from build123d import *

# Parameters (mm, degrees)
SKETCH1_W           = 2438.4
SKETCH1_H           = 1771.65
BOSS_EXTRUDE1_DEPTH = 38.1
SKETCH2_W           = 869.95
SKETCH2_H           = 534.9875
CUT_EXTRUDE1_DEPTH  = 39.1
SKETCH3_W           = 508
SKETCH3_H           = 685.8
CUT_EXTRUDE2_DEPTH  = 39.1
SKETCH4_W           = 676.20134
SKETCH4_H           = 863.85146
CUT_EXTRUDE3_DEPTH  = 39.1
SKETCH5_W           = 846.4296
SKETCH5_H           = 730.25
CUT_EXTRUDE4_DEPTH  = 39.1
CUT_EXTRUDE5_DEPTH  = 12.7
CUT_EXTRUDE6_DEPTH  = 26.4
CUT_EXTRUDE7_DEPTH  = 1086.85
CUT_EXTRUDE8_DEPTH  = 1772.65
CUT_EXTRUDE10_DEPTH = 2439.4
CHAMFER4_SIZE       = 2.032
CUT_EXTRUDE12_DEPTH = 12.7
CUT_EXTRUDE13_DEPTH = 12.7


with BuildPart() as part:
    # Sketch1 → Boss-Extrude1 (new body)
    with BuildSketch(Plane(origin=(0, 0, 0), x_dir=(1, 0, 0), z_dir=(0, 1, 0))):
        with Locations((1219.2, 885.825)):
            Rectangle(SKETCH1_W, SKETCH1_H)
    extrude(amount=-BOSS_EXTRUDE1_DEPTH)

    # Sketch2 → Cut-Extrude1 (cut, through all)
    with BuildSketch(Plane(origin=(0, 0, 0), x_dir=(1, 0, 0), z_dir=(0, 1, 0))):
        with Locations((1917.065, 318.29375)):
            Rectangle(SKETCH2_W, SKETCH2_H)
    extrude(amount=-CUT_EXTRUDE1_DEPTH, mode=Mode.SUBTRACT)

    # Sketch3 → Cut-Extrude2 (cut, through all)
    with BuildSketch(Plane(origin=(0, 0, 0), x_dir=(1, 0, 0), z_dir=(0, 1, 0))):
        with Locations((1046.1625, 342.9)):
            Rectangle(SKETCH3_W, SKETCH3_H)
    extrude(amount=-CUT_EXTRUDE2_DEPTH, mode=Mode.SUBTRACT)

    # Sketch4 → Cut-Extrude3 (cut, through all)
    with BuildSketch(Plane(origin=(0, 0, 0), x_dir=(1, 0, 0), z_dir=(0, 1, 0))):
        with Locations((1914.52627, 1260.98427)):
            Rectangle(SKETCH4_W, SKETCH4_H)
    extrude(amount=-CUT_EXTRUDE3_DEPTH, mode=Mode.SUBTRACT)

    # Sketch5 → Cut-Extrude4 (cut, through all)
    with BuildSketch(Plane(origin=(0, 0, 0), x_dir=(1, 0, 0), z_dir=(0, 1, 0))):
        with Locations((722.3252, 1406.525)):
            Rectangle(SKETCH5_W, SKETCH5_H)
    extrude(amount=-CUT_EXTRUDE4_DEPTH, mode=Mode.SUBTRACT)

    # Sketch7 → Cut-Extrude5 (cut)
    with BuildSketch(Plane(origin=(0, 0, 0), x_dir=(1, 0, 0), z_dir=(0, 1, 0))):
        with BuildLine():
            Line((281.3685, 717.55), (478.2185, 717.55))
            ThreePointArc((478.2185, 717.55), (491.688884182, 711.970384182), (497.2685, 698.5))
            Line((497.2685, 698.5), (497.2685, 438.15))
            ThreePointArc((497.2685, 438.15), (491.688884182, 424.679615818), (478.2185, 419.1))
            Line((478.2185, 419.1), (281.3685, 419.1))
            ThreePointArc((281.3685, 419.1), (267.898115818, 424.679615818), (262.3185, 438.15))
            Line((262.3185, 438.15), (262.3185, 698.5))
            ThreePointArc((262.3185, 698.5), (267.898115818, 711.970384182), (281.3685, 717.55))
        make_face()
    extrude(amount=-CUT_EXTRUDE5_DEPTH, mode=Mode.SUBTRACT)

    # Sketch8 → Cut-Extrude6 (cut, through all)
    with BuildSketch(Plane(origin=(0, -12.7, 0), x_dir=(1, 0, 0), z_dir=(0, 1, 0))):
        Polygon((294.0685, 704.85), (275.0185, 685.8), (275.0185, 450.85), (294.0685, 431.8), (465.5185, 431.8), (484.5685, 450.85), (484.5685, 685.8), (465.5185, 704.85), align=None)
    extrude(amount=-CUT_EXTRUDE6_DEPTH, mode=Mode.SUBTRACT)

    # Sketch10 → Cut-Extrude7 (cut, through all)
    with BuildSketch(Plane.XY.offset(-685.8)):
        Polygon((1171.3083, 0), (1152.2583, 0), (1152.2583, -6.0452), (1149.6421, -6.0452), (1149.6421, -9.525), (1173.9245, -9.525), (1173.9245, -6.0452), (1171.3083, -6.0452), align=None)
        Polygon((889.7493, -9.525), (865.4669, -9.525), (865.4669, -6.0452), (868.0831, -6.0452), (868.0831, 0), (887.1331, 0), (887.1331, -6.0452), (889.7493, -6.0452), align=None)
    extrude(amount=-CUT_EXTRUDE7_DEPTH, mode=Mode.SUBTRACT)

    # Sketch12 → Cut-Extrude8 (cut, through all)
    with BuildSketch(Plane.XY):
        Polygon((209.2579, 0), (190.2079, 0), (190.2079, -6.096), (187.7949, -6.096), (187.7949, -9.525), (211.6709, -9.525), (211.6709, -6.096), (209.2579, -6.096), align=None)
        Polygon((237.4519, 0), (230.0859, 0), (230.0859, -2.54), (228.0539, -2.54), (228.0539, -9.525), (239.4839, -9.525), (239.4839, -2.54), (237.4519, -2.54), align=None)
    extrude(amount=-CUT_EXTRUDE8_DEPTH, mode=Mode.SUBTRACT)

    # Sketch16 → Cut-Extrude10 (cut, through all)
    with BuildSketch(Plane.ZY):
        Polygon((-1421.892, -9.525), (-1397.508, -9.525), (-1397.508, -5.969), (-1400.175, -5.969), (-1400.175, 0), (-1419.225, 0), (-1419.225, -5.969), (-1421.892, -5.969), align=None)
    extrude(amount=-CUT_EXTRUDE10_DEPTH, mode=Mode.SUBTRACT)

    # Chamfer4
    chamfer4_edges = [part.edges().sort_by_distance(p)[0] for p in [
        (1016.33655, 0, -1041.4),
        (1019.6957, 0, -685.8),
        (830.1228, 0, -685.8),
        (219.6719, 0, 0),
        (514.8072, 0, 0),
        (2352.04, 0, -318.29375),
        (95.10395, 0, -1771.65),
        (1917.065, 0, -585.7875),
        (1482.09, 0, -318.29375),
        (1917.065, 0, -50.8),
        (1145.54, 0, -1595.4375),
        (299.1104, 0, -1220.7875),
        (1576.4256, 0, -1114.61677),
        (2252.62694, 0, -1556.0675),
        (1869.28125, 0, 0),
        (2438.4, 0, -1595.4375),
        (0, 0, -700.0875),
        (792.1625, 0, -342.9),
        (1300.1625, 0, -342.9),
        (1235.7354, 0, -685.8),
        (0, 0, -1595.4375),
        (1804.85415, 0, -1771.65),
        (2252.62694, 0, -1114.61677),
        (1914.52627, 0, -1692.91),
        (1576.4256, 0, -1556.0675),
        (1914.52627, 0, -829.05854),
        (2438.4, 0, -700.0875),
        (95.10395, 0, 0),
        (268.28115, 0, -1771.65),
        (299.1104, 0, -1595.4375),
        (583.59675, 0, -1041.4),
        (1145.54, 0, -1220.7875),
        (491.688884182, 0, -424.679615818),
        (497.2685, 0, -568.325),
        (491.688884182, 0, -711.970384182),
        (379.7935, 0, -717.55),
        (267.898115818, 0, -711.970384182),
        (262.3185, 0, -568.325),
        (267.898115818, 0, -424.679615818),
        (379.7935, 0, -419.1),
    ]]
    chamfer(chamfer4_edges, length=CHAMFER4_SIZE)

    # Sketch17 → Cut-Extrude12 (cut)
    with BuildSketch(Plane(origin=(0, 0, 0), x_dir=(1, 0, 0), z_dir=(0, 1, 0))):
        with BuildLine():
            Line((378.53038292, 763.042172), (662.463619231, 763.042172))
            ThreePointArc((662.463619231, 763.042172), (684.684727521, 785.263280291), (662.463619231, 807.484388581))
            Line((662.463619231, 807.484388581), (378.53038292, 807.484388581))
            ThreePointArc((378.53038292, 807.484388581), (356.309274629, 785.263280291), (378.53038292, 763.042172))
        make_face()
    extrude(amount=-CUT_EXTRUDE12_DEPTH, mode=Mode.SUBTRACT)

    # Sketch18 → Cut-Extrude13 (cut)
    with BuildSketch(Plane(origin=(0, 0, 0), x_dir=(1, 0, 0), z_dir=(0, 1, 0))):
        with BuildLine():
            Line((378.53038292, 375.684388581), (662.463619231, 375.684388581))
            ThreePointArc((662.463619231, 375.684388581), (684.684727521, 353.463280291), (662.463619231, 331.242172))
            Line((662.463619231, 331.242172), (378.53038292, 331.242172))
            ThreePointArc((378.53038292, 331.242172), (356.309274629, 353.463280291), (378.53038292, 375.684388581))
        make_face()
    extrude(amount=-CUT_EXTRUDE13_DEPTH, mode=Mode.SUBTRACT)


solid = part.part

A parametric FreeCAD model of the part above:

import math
import FreeCAD as App
import Part
import Sketcher
from FreeCAD import Vector
Q = App.Units.Quantity


def edges_at(feature, points):
    """Names of the edges that pass closest to the given points."""
    edges = feature.Shape.Edges
    near = lambda p: min(range(len(edges)), key=lambda i: edges[i].distToShape(Part.Vertex(*p))[0])
    return sorted({f"Edge{near(p) + 1}" for p in points})

doc = App.newDocument("Part")
body = doc.addObject("PartDesign::Body", "Body")

# Sketch on XZ plane
sketch1 = doc.addObject("Sketcher::SketchObject", "Sketch")
body.addObject(sketch1)
sketch1.AttachmentSupport = (doc.XZ_Plane, [""])
sketch1.MapMode = "FlatFace"
sketch1.addGeometry([
    Part.LineSegment(Vector(0, -1771.65, 0), Vector(0, 0, 0)),
    Part.LineSegment(Vector(0, 0, 0), Vector(2438.4, 0, 0)),
    Part.LineSegment(Vector(2438.4, 0, 0), Vector(2438.4, -1771.65, 0)),
    Part.LineSegment(Vector(2438.4, -1771.65, 0), Vector(0, -1771.65, 0)),
], False)
sketch1.addConstraint([
    Sketcher.Constraint("Coincident", 0, 2, 1, 1),
    Sketcher.Constraint("Coincident", 1, 2, 2, 1),
    Sketcher.Constraint("Coincident", 2, 2, 3, 1),
    Sketcher.Constraint("Coincident", 3, 2, 0, 1),
    Sketcher.Constraint("Vertical", 0),
    Sketcher.Constraint("Horizontal", 1),
    Sketcher.Constraint("Vertical", 2),
    Sketcher.Constraint("Horizontal", 3),
    Sketcher.Constraint("Coincident", 0, 2, -1, 1),
    Sketcher.Constraint("DistanceX", 1, 1, 1, 2, Q("96 in")),
    Sketcher.Constraint("DistanceY", 0, 1, 0, 2, Q("69.75 in")),
])
pad1 = doc.addObject("PartDesign::Pad", "Pad")
body.addObject(pad1)
pad1.Profile = sketch1
pad1.Length = Q("1.5 in")

# Sketch on XZ plane
sketch2 = doc.addObject("Sketcher::SketchObject", "Sketch001")
body.addObject(sketch2)
sketch2.AttachmentSupport = (doc.XZ_Plane, [""])
sketch2.MapMode = "FlatFace"
sketch2.addGeometry([
    Part.LineSegment(Vector(1482.09, -585.7875, 0), Vector(1482.09, -50.8, 0)),
    Part.LineSegment(Vector(1482.09, -50.8, 0), Vector(2352.04, -50.8, 0)),
    Part.LineSegment(Vector(2352.04, -50.8, 0), Vector(2352.04, -585.7875, 0)),
    Part.LineSegment(Vector(2352.04, -585.7875, 0), Vector(1482.09, -585.7875, 0)),
], False)
sketch2.addConstraint([
    Sketcher.Constraint("Coincident", 0, 2, 1, 1),
    Sketcher.Constraint("Coincident", 1, 2, 2, 1),
    Sketcher.Constraint("Coincident", 2, 2, 3, 1),
    Sketcher.Constraint("Coincident", 3, 2, 0, 1),
    Sketcher.Constraint("Vertical", 0),
    Sketcher.Constraint("Horizontal", 1),
    Sketcher.Constraint("Vertical", 2),
    Sketcher.Constraint("Horizontal", 3),
    Sketcher.Constraint("DistanceY", 0, 2, -1, 1, Q("2 in")),
    Sketcher.Constraint("DistanceX", 1, 1, 1, 2, Q("34.25 in")),
    Sketcher.Constraint("DistanceX", -1, 1, 1, 2, Q("92.6 in")),
    Sketcher.Constraint("DistanceY", 0, 1, 0, 2, Q("21.0625 in")),
])
pocket1 = doc.addObject("PartDesign::Pocket", "Pocket")
body.addObject(pocket1)
pocket1.Profile = sketch2
pocket1.Type = "ThroughAll"
pocket1.Reversed = True

# Sketch on XZ plane
sketch3 = doc.addObject("Sketcher::SketchObject", "Sketch002")
body.addObject(sketch3)
sketch3.AttachmentSupport = (doc.XZ_Plane, [""])
sketch3.MapMode = "FlatFace"
sketch3.addGeometry([
    Part.LineSegment(Vector(792.1625, -685.8, 0), Vector(792.1625, 0, 0)),
    Part.LineSegment(Vector(792.1625, 0, 0), Vector(1300.1625, 0, 0)),
    Part.LineSegment(Vector(1300.1625, 0, 0), Vector(1300.1625, -685.8, 0)),
    Part.LineSegment(Vector(1300.1625, -685.8, 0), Vector(792.1625, -685.8, 0)),
], False)
sketch3.addConstraint([
    Sketcher.Constraint("Coincident", 0, 2, 1, 1),
    Sketcher.Constraint("Coincident", 1, 2, 2, 1),
    Sketcher.Constraint("Coincident", 2, 2, 3, 1),
    Sketcher.Constraint("Coincident", 3, 2, 0, 1),
    Sketcher.Constraint("Vertical", 0),
    Sketcher.Constraint("Horizontal", 1),
    Sketcher.Constraint("Vertical", 2),
    Sketcher.Constraint("Horizontal", 3),
    Sketcher.Constraint("PointOnObject", 0, 2, -1),
    Sketcher.Constraint("DistanceX", 1, 1, 1, 2, Q("20 in")),
    Sketcher.Constraint("DistanceY", 0, 1, 0, 2, Q("27 in")),
    Sketcher.Constraint("DistanceX", -1, 1, 0, 2, Q("31.1875 in")),
])
pocket2 = doc.addObject("PartDesign::Pocket", "Pocket001")
body.addObject(pocket2)
pocket2.Profile = sketch3
pocket2.Type = "ThroughAll"
pocket2.Reversed = True

# Sketch on XZ plane
sketch4 = doc.addObject("Sketcher::SketchObject", "Sketch003")
body.addObject(sketch4)
sketch4.AttachmentSupport = (doc.XZ_Plane, [""])
sketch4.MapMode = "FlatFace"
sketch4.addGeometry([
    Part.LineSegment(Vector(1576.4256, -1692.91, 0), Vector(1576.4256, -829.05854, 0)),
    Part.LineSegment(Vector(1576.4256, -829.05854, 0), Vector(2252.62694, -829.05854, 0)),
    Part.LineSegment(Vector(2252.62694, -829.05854, 0), Vector(2252.62694, -1692.91, 0)),
    Part.LineSegment(Vector(2252.62694, -1692.91, 0), Vector(1576.4256, -1692.91, 0)),
], False)
sketch4.addConstraint([
    Sketcher.Constraint("Coincident", 0, 2, 1, 1),
    Sketcher.Constraint("Coincident", 1, 2, 2, 1),
    Sketcher.Constraint("Coincident", 2, 2, 3, 1),
    Sketcher.Constraint("Coincident", 3, 2, 0, 1),
    Sketcher.Constraint("Vertical", 0),
    Sketcher.Constraint("Horizontal", 1),
    Sketcher.Constraint("Vertical", 2),
    Sketcher.Constraint("Horizontal", 3),
    Sketcher.Constraint("DistanceY", 2, 2, -1, 1, Q("66.65 in")),
    Sketcher.Constraint("DistanceX", 1, 1, 1, 2, Q("26.6221 in")),
    Sketcher.Constraint("DistanceY", 0, 1, 0, 2, Q("34.0099 in")),
    Sketcher.Constraint("DistanceX", -1, 1, 0, 2, Q("62.064 in")),
])
pocket3 = doc.addObject("PartDesign::Pocket", "Pocket002")
body.addObject(pocket3)
pocket3.Profile = sketch4
pocket3.Type = "ThroughAll"
pocket3.Reversed = True

# Sketch on XZ plane
sketch5 = doc.addObject("Sketcher::SketchObject", "Sketch004")
body.addObject(sketch5)
sketch5.AttachmentSupport = (doc.XZ_Plane, [""])
sketch5.MapMode = "FlatFace"
sketch5.addGeometry([
    Part.LineSegment(Vector(299.1104, -1771.65, 0), Vector(299.1104, -1041.4, 0)),
    Part.LineSegment(Vector(299.1104, -1041.4, 0), Vector(1145.54, -1041.4, 0)),
    Part.LineSegment(Vector(1145.54, -1041.4, 0), Vector(1145.54, -1771.65, 0)),
    Part.LineSegment(Vector(1145.54, -1771.65, 0), Vector(299.1104, -1771.65, 0)),
], False)
sketch5.addConstraint([
    Sketcher.Constraint("Coincident", 0, 2, 1, 1),
    Sketcher.Constraint("Coincident", 1, 2, 2, 1),
    Sketcher.Constraint("Coincident", 2, 2, 3, 1),
    Sketcher.Constraint("Coincident", 3, 2, 0, 1),
    Sketcher.Constraint("Vertical", 0),
    Sketcher.Constraint("Horizontal", 1),
    Sketcher.Constraint("Vertical", 2),
    Sketcher.Constraint("Horizontal", 3),
    Sketcher.Constraint("DistanceY", 0, 2, -1, 1, Q("41 in")),
    Sketcher.Constraint("DistanceY", 0, 1, 0, 2, Q("28.75 in")),
    Sketcher.Constraint("DistanceX", -1, 1, 1, 2, Q("45.1 in")),
    Sketcher.Constraint("DistanceX", 1, 1, 1, 2, Q("33.324 in")),
])
pocket4 = doc.addObject("PartDesign::Pocket", "Pocket003")
body.addObject(pocket4)
pocket4.Profile = sketch5
pocket4.Type = "ThroughAll"
pocket4.Reversed = True

# Sketch on XZ plane
sketch6 = doc.addObject("Sketcher::SketchObject", "Sketch005")
body.addObject(sketch6)
sketch6.AttachmentSupport = (doc.XZ_Plane, [""])
sketch6.MapMode = "FlatFace"
sketch6.addGeometry([
    Part.LineSegment(Vector(478.2185, -717.55, 0), Vector(281.3685, -717.55, 0)),  # 0
    Part.ArcOfCircle(Part.Circle(Vector(281.3685, -698.5, 0), Vector(0, 0, 1), 19.05), math.radians(180), math.radians(270)),  # 1
    Part.LineSegment(Vector(262.3185, -698.5, 0), Vector(262.3185, -438.15, 0)),  # 2
    Part.ArcOfCircle(Part.Circle(Vector(281.3685, -438.15, 0), Vector(0, 0, 1), 19.05), math.radians(90), math.radians(180)),  # 3
    Part.LineSegment(Vector(281.3685, -419.1, 0), Vector(478.2185, -419.1, 0)),  # 4
    Part.ArcOfCircle(Part.Circle(Vector(478.2185, -438.15, 0), Vector(0, 0, 1), 19.05), math.radians(0), math.radians(90)),  # 5
    Part.LineSegment(Vector(497.2685, -438.15, 0), Vector(497.2685, -698.5, 0)),  # 6
    Part.ArcOfCircle(Part.Circle(Vector(478.2185, -698.5, 0), Vector(0, 0, 1), 19.05), math.radians(-90), math.radians(0)),  # 7
], False)
sketch6.addConstraint([
    Sketcher.Constraint("Tangent", 0, 2, 1, 2),
    Sketcher.Constraint("Tangent", 1, 1, 2, 1),
    Sketcher.Constraint("Tangent", 2, 2, 3, 2),
    Sketcher.Constraint("Tangent", 3, 1, 4, 1),
    Sketcher.Constraint("Tangent", 4, 2, 5, 2),
    Sketcher.Constraint("Tangent", 5, 1, 6, 1),
    Sketcher.Constraint("Tangent", 6, 2, 7, 2),
    Sketcher.Constraint("Tangent", 7, 1, 0, 1),
    Sketcher.Constraint("Horizontal", 0),
    Sketcher.Constraint("Vertical", 2),
    Sketcher.Constraint("Horizontal", 4),
    Sketcher.Constraint("Vertical", 6),
    Sketcher.Constraint("Equal", 1, 3),
    Sketcher.Constraint("Equal", 3, 5),
    Sketcher.Constraint("Equal", 5, 7),
    Sketcher.Constraint("Radius", 1, Q("0.75 in")),
    Sketcher.Constraint("DistanceY", 0, 2, 3, 3, Q("11 in")),
    Sketcher.Constraint("DistanceX", 0, 2, 0, 1, Q("7.75 in")),
    Sketcher.Constraint("DistanceY", 1, 3, -1, 1, Q("27.5 in")),
    Sketcher.Constraint("DistanceX", -1, 1, 1, 3, Q("11.0775 in")),
])
pocket5 = doc.addObject("PartDesign::Pocket", "Pocket004")
body.addObject(pocket5)
pocket5.Profile = sketch6
pocket5.Length = Q("0.5 in")
pocket5.Reversed = True

# Sketch on XZ plane
sketch7 = doc.addObject("Sketcher::SketchObject", "Sketch006")
body.addObject(sketch7)
sketch7.AttachmentSupport = (doc.XZ_Plane, [""])
sketch7.MapMode = "FlatFace"
sketch7.AttachmentOffset = App.Placement(Vector(0, 0, 0.5 * 25.4), App.Rotation())
sketch7.addGeometry([
    Part.LineSegment(Vector(294.0685, -704.85, 0), Vector(275.0185, -685.8, 0)),  # 0
    Part.LineSegment(Vector(275.0185, -685.8, 0), Vector(275.0185, -450.85, 0)),  # 1
    Part.LineSegment(Vector(275.0185, -450.85, 0), Vector(294.0685, -431.8, 0)),  # 2
    Part.LineSegment(Vector(294.0685, -431.8, 0), Vector(465.5185, -431.8, 0)),  # 3
    Part.LineSegment(Vector(465.5185, -431.8, 0), Vector(484.5685, -450.85, 0)),  # 4
    Part.LineSegment(Vector(484.5685, -450.85, 0), Vector(484.5685, -685.8, 0)),  # 5
    Part.LineSegment(Vector(484.5685, -685.8, 0), Vector(465.5185, -704.85, 0)),  # 6
    Part.LineSegment(Vector(465.5185, -704.85, 0), Vector(294.0685, -704.85, 0)),  # 7
], False)
sketch7.addConstraint([
    Sketcher.Constraint("Coincident", 0, 2, 1, 1),
    Sketcher.Constraint("Coincident", 1, 2, 2, 1),
    Sketcher.Constraint("Coincident", 2, 2, 3, 1),
    Sketcher.Constraint("Coincident", 3, 2, 4, 1),
    Sketcher.Constraint("Coincident", 4, 2, 5, 1),
    Sketcher.Constraint("Coincident", 5, 2, 6, 1),
    Sketcher.Constraint("Coincident", 6, 2, 7, 1),
    Sketcher.Constraint("Coincident", 7, 2, 0, 1),
    Sketcher.Constraint("Vertical", 1),
    Sketcher.Constraint("Horizontal", 3),
    Sketcher.Constraint("Vertical", 5),
    Sketcher.Constraint("Horizontal", 7),
    Sketcher.Constraint("Perpendicular", 0, 2),
    Sketcher.Constraint("Perpendicular", 2, 4),
    Sketcher.Constraint("Perpendicular", 4, 6),
    Sketcher.Constraint("Horizontal", 1, 2, 4, 2),
    Sketcher.Constraint("Horizontal", 0, 2, 5, 2),
    Sketcher.Constraint("Vertical", 3, 2, 6, 2),
    Sketcher.Constraint("Vertical", 2, 2, 7, 2),
    Sketcher.Constraint("DistanceY", 0, 2, -1, 1, Q("27 in")),
    Sketcher.Constraint("DistanceY", 2, 2, -1, 1, Q("17 in")),
    Sketcher.Constraint("DistanceX", 3, 1, 3, 2, Q("6.75 in")),
    Sketcher.Constraint("DistanceY", 1, 1, 1, 2, Q("9.25 in")),
    Sketcher.Constraint("DistanceX", -1, 1, 0, 2, Q("10.8275 in")),
])
pocket6 = doc.addObject("PartDesign::Pocket", "Pocket005")
body.addObject(pocket6)
pocket6.Profile = sketch7
pocket6.Type = "ThroughAll"
pocket6.Reversed = True

# Sketch on XY plane
sketch8 = doc.addObject("Sketcher::SketchObject", "Sketch007")
body.addObject(sketch8)
sketch8.AttachmentSupport = (doc.XY_Plane, [""])
sketch8.MapMode = "FlatFace"
sketch8.AttachmentOffset = App.Placement(Vector(0, 0, -27 * 25.4), App.Rotation())
sketch8.addGeometry([
    Part.LineSegment(Vector(1171.3083, 0, 0), Vector(1152.2583, 0, 0)),  # 0
    Part.LineSegment(Vector(1152.2583, 0, 0), Vector(1152.2583, -6.0452, 0)),  # 1
    Part.LineSegment(Vector(1152.2583, -6.0452, 0), Vector(1149.6421, -6.0452, 0)),  # 2
    Part.LineSegment(Vector(1149.6421, -6.0452, 0), Vector(1149.6421, -9.525, 0)),  # 3
    Part.LineSegment(Vector(1149.6421, -9.525, 0), Vector(1173.9245, -9.525, 0)),  # 4
    Part.LineSegment(Vector(1173.9245, -9.525, 0), Vector(1173.9245, -6.0452, 0)),  # 5
    Part.LineSegment(Vector(1173.9245, -6.0452, 0), Vector(1171.3083, -6.0452, 0)),  # 6
    Part.LineSegment(Vector(1171.3083, -6.0452, 0), Vector(1171.3083, 0, 0)),  # 7
    Part.LineSegment(Vector(865.4669, -9.525, 0), Vector(889.7493, -9.525, 0)),  # 8
    Part.LineSegment(Vector(889.7493, -9.525, 0), Vector(889.7493, -6.0452, 0)),  # 9
    Part.LineSegment(Vector(889.7493, -6.0452, 0), Vector(887.1331, -6.0452, 0)),  # 10
    Part.LineSegment(Vector(887.1331, -6.0452, 0), Vector(887.1331, 0, 0)),  # 11
    Part.LineSegment(Vector(887.1331, 0, 0), Vector(868.0831, 0, 0)),  # 12
    Part.LineSegment(Vector(868.0831, 0, 0), Vector(868.0831, -6.0452, 0)),  # 13
    Part.LineSegment(Vector(868.0831, -6.0452, 0), Vector(865.4669, -6.0452, 0)),  # 14
    Part.LineSegment(Vector(865.4669, -6.0452, 0), Vector(865.4669, -9.525, 0)),  # 15
], False)
sketch8.addConstraint([
    Sketcher.Constraint("Coincident", 0, 2, 1, 1),
    Sketcher.Constraint("Coincident", 1, 2, 2, 1),
    Sketcher.Constraint("Coincident", 2, 2, 3, 1),
    Sketcher.Constraint("Coincident", 3, 2, 4, 1),
    Sketcher.Constraint("Coincident", 4, 2, 5, 1),
    Sketcher.Constraint("Coincident", 5, 2, 6, 1),
    Sketcher.Constraint("Coincident", 6, 2, 7, 1),
    Sketcher.Constraint("Coincident", 7, 2, 0, 1),
    Sketcher.Constraint("Coincident", 8, 2, 9, 1),
    Sketcher.Constraint("Coincident", 9, 2, 10, 1),
    Sketcher.Constraint("Coincident", 10, 2, 11, 1),
    Sketcher.Constraint("Coincident", 11, 2, 12, 1),
    Sketcher.Constraint("Coincident", 12, 2, 13, 1),
    Sketcher.Constraint("Coincident", 13, 2, 14, 1),
    Sketcher.Constraint("Coincident", 14, 2, 15, 1),
    Sketcher.Constraint("Coincident", 15, 2, 8, 1),
    Sketcher.Constraint("Horizontal", 0),
    Sketcher.Constraint("Vertical", 1),
    Sketcher.Constraint("Horizontal", 2),
    Sketcher.Constraint("Vertical", 3),
    Sketcher.Constraint("Horizontal", 4),
    Sketcher.Constraint("Vertical", 5),
    Sketcher.Constraint("Horizontal", 6),
    Sketcher.Constraint("Vertical", 7),
    Sketcher.Constraint("Horizontal", 8),
    Sketcher.Constraint("Vertical", 9),
    Sketcher.Constraint("Horizontal", 10),
    Sketcher.Constraint("Vertical", 11),
    Sketcher.Constraint("Horizontal", 12),
    Sketcher.Constraint("Vertical", 13),
    Sketcher.Constraint("Horizontal", 14),
    Sketcher.Constraint("Vertical", 15),
    Sketcher.Constraint("PointOnObject", 0, 2, -1),
    Sketcher.Constraint("PointOnObject", 11, 2, -1),
    Sketcher.Constraint("Horizontal", 2, 2, 5, 2),
    Sketcher.Constraint("Horizontal", 4, 2, 8, 2),
    Sketcher.Constraint("Horizontal", 6, 2, 9, 2),
    Sketcher.Constraint("Horizontal", 10, 2, 13, 2),
    Sketcher.Constraint("Equal", 2, 6),
    Sketcher.Constraint("Equal", 4, 8),
    Sketcher.Constraint("Equal", 6, 10),
    Sketcher.Constraint("Equal", 0, 12),
    Sketcher.Constraint("DistanceX", 0, 2, 0, 1, Q("0.75 in")),
    Sketcher.Constraint("DistanceX", 2, 2, 2, 1, Q("0.103 in")),
    Sketcher.Constraint("DistanceY", 1, 2, 1, 1, Q("0.238 in")),
    Sketcher.Constraint("DistanceY", 3, 2, 3, 1, Q("0.137 in")),
    Sketcher.Constraint("DistanceX", 8, 2, 3, 2, Q("10.232 in")),
    Sketcher.Constraint("DistanceX", -1, 1, 0, 2, Q("45.3645 in")),
])
pocket7 = doc.addObject("PartDesign::Pocket", "Pocket006")
body.addObject(pocket7)
pocket7.Profile = sketch8
pocket7.Type = "ThroughAll"

# Sketch on XY plane
sketch9 = doc.addObject("Sketcher::SketchObject", "Sketch008")
body.addObject(sketch9)
sketch9.AttachmentSupport = (doc.XY_Plane, [""])
sketch9.MapMode = "FlatFace"
sketch9.addGeometry([
    Part.LineSegment(Vector(209.2579, 0, 0), Vector(190.2079, 0, 0)),  # 0
    Part.LineSegment(Vector(190.2079, 0, 0), Vector(190.2079, -6.096, 0)),  # 1
    Part.LineSegment(Vector(190.2079, -6.096, 0), Vector(187.7949, -6.096, 0)),  # 2
    Part.LineSegment(Vector(187.7949, -6.096, 0), Vector(187.7949, -9.525, 0)),  # 3
    Part.LineSegment(Vector(187.7949, -9.525, 0), Vector(211.6709, -9.525, 0)),  # 4
    Part.LineSegment(Vector(211.6709, -9.525, 0), Vector(211.6709, -6.096, 0)),  # 5
    Part.LineSegment(Vector(211.6709, -6.096, 0), Vector(209.2579, -6.096, 0)),  # 6
    Part.LineSegment(Vector(209.2579, -6.096, 0), Vector(209.2579, 0, 0)),  # 7
    Part.LineSegment(Vector(237.4519, 0, 0), Vector(230.0859, 0, 0)),  # 8
    Part.LineSegment(Vector(230.0859, 0, 0), Vector(230.0859, -2.54, 0)),  # 9
    Part.LineSegment(Vector(230.0859, -2.54, 0), Vector(228.0539, -2.54, 0)),  # 10
    Part.LineSegment(Vector(228.0539, -2.54, 0), Vector(228.0539, -9.525, 0)),  # 11
    Part.LineSegment(Vector(228.0539, -9.525, 0), Vector(239.4839, -9.525, 0)),  # 12
    Part.LineSegment(Vector(239.4839, -9.525, 0), Vector(239.4839, -2.54, 0)),  # 13
    Part.LineSegment(Vector(239.4839, -2.54, 0), Vector(237.4519, -2.54, 0)),  # 14
    Part.LineSegment(Vector(237.4519, -2.54, 0), Vector(237.4519, 0, 0)),  # 15
], False)
sketch9.addConstraint([
    Sketcher.Constraint("Coincident", 0, 2, 1, 1),
    Sketcher.Constraint("Coincident", 1, 2, 2, 1),
    Sketcher.Constraint("Coincident", 2, 2, 3, 1),
    Sketcher.Constraint("Coincident", 3, 2, 4, 1),
    Sketcher.Constraint("Coincident", 4, 2, 5, 1),
    Sketcher.Constraint("Coincident", 5, 2, 6, 1),
    Sketcher.Constraint("Coincident", 6, 2, 7, 1),
    Sketcher.Constraint("Coincident", 7, 2, 0, 1),
    Sketcher.Constraint("Coincident", 8, 2, 9, 1),
    Sketcher.Constraint("Coincident", 9, 2, 10, 1),
    Sketcher.Constraint("Coincident", 10, 2, 11, 1),
    Sketcher.Constraint("Coincident", 11, 2, 12, 1),
    Sketcher.Constraint("Coincident", 12, 2, 13, 1),
    Sketcher.Constraint("Coincident", 13, 2, 14, 1),
    Sketcher.Constraint("Coincident", 14, 2, 15, 1),
    Sketcher.Constraint("Coincident", 15, 2, 8, 1),
    Sketcher.Constraint("Horizontal", 0),
    Sketcher.Constraint("Vertical", 1),
    Sketcher.Constraint("Horizontal", 2),
    Sketcher.Constraint("Vertical", 3),
    Sketcher.Constraint("Horizontal", 4),
    Sketcher.Constraint("Vertical", 5),
    Sketcher.Constraint("Horizontal", 6),
    Sketcher.Constraint("Vertical", 7),
    Sketcher.Constraint("Horizontal", 8),
    Sketcher.Constraint("Vertical", 9),
    Sketcher.Constraint("Horizontal", 10),
    Sketcher.Constraint("Vertical", 11),
    Sketcher.Constraint("Horizontal", 12),
    Sketcher.Constraint("Vertical", 13),
    Sketcher.Constraint("Horizontal", 14),
    Sketcher.Constraint("Vertical", 15),
    Sketcher.Constraint("PointOnObject", 0, 2, -1),
    Sketcher.Constraint("PointOnObject", 8, 2, -1),
    Sketcher.Constraint("Horizontal", 2, 2, 5, 2),
    Sketcher.Constraint("Horizontal", 4, 2, 11, 2),
    Sketcher.Constraint("Horizontal", 10, 2, 13, 2),
    Sketcher.Constraint("Equal", 2, 6),
    Sketcher.Constraint("Equal", 10, 14),
    Sketcher.Constraint("DistanceY", 9, 2, 9, 1, Q("0.1 in")),
    Sketcher.Constraint("DistanceX", 0, 2, 0, 1, Q("0.75 in")),
    Sketcher.Constraint("DistanceX", 4, 1, 4, 2, Q("0.94 in")),
    Sketcher.Constraint("DistanceX", 8, 2, 8, 1, Q("0.29 in")),
    Sketcher.Constraint("DistanceX", 10, 2, 10, 1, Q("0.08 in")),
    Sketcher.Constraint("DistanceY", 1, 2, 1, 1, Q("0.24 in")),
    Sketcher.Constraint("DistanceY", 3, 2, 3, 1, Q("0.135 in")),
    Sketcher.Constraint("DistanceX", 7, 2, 8, 2, Q("0.82 in")),
    Sketcher.Constraint("DistanceX", -1, 1, 0, 2, Q("7.4885 in")),
])
pocket8 = doc.addObject("PartDesign::Pocket", "Pocket007")
body.addObject(pocket8)
pocket8.Profile = sketch9
pocket8.Type = "ThroughAll"

# Sketch on YZ plane
sketch10 = doc.addObject("Sketcher::SketchObject", "Sketch009")
body.addObject(sketch10)
sketch10.AttachmentSupport = (doc.YZ_Plane, [""])
sketch10.MapMode = "FlatFace"
sketch10.addGeometry([
    Part.LineSegment(Vector(-9.525, -1421.892, 0), Vector(-9.525, -1397.508, 0)),  # 0
    Part.LineSegment(Vector(-9.525, -1397.508, 0), Vector(-5.969, -1397.508, 0)),  # 1
    Part.LineSegment(Vector(-5.969, -1397.508, 0), Vector(-5.969, -1400.175, 0)),  # 2
    Part.LineSegment(Vector(-5.969, -1400.175, 0), Vector(0, -1400.175, 0)),  # 3
    Part.LineSegment(Vector(0, -1400.175, 0), Vector(0, -1419.225, 0)),  # 4
    Part.LineSegment(Vector(0, -1419.225, 0), Vector(-5.969, -1419.225, 0)),  # 5
    Part.LineSegment(Vector(-5.969, -1419.225, 0), Vector(-5.969, -1421.892, 0)),  # 6
    Part.LineSegment(Vector(-5.969, -1421.892, 0), Vector(-9.525, -1421.892, 0)),  # 7
], False)
sketch10.addConstraint([
    Sketcher.Constraint("Coincident", 0, 2, 1, 1),
    Sketcher.Constraint("Coincident", 1, 2, 2, 1),
    Sketcher.Constraint("Coincident", 2, 2, 3, 1),
    Sketcher.Constraint("Coincident", 3, 2, 4, 1),
    Sketcher.Constraint("Coincident", 4, 2, 5, 1),
    Sketcher.Constraint("Coincident", 5, 2, 6, 1),
    Sketcher.Constraint("Coincident", 6, 2, 7, 1),
    Sketcher.Constraint("Coincident", 7, 2, 0, 1),
    Sketcher.Constraint("Vertical", 0),
    Sketcher.Constraint("Horizontal", 1),
    Sketcher.Constraint("Vertical", 2),
    Sketcher.Constraint("Horizontal", 3),
    Sketcher.Constraint("Vertical", 4),
    Sketcher.Constraint("Horizontal", 5),
    Sketcher.Constraint("Vertical", 6),
    Sketcher.Constraint("Horizontal", 7),
    Sketcher.Constraint("PointOnObject", 3, 2, -2),
    Sketcher.Constraint("Vertical", 2, 2, 5, 2),
    Sketcher.Constraint("Equal", 2, 6),
    Sketcher.Constraint("DistanceX", 1, 1, 1, 2, Q("0.14 in")),
    Sketcher.Constraint("DistanceY", 0, 1, 0, 2, Q("0.96 in")),
    Sketcher.Constraint("DistanceY", 4, 2, 4, 1, Q("0.75 in")),
    Sketcher.Constraint("DistanceX", 3, 1, 3, 2, Q("0.235 in")),
    Sketcher.Constraint("DistanceY", 0, 2, -1, 1, Q("55.02 in")),
])
pocket9 = doc.addObject("PartDesign::Pocket", "Pocket008")
body.addObject(pocket9)
pocket9.Profile = sketch10
pocket9.Type = "ThroughAll"
pocket9.Reversed = True
doc.recompute()

chamfer = doc.addObject("PartDesign::Chamfer", "Chamfer")
body.addObject(chamfer)
chamfer.Base = (pocket9, edges_at(pocket9, [
    (1016.337, 0, -1041.4),
    (1019.696, 0, -685.8),
    (830.123, 0, -685.8),
    (219.672, 0, 0),
    (514.807, 0, 0),
    (2352.04, 0, -318.294),
    (95.104, 0, -1771.65),
    (1917.065, 0, -585.788),
    (1482.09, 0, -318.294),
    (1917.065, 0, -50.8),
    (1145.54, 0, -1595.438),
    (299.11, 0, -1220.787),
    (1576.426, 0, -1114.617),
    (2252.627, 0, -1556.068),
    (1869.281, 0, 0),
    (2438.4, 0, -1595.438),
    (0, 0, -700.087),
    (792.163, 0, -342.9),
    (1300.162, 0, -342.9),
    (1235.735, 0, -685.8),
    (0, 0, -1595.438),
    (1804.854, 0, -1771.65),
    (2252.627, 0, -1114.617),
    (1914.526, 0, -1692.91),
    (1576.426, 0, -1556.068),
    (1914.526, 0, -829.059),
    (2438.4, 0, -700.087),
    (95.104, 0, 0),
    (268.281, 0, -1771.65),
    (299.11, 0, -1595.438),
    (583.597, 0, -1041.4),
    (1145.54, 0, -1220.787),
    (491.689, 0, -424.68),
    (497.269, 0, -568.325),
    (491.689, 0, -711.97),
    (379.793, 0, -717.55),
    (267.898, 0, -711.97),
    (262.318, 0, -568.325),
    (267.898, 0, -424.68),
    (379.793, 0, -419.1),
]))
chamfer.Size = Q("0.08 in")

# Sketch on XZ plane
sketch11 = doc.addObject("Sketcher::SketchObject", "Sketch010")
body.addObject(sketch11)
sketch11.AttachmentSupport = (doc.XZ_Plane, [""])
sketch11.MapMode = "FlatFace"
sketch11.addGeometry([
    Part.LineSegment(Vector(378.530383, -763.042172, 0), Vector(662.463619, -763.042172, 0)),
    Part.ArcOfCircle(Part.Circle(Vector(662.463619, -785.26328, 0), Vector(0, 0, 1), 22.221108), math.radians(-90), math.radians(90)),
    Part.LineSegment(Vector(662.463619, -807.484389, 0), Vector(378.530383, -807.484389, 0)),
    Part.ArcOfCircle(Part.Circle(Vector(378.530383, -785.26328, 0), Vector(0, 0, 1), 22.221108), math.radians(90), math.radians(270)),
], False)
sketch11.addConstraint([
    Sketcher.Constraint("Tangent", 0, 2, 1, 2),
    Sketcher.Constraint("Tangent", 1, 1, 2, 1),
    Sketcher.Constraint("Tangent", 2, 2, 3, 2),
    Sketcher.Constraint("Tangent", 3, 1, 0, 1),
    Sketcher.Constraint("Horizontal", 0),
    Sketcher.Constraint("Horizontal", 2),
    Sketcher.Constraint("Radius", 1, Q("22.221108 mm")),
    Sketcher.Constraint("DistanceX", 0, 1, 0, 2, Q("283.933236 mm")),
    Sketcher.Constraint("DistanceX", -1, 1, 1, 3, Q("662.463619 mm")),
    Sketcher.Constraint("DistanceY", 1, 3, -1, 1, Q("785.26328 mm")),
])
pocket10 = doc.addObject("PartDesign::Pocket", "Pocket009")
body.addObject(pocket10)
pocket10.Profile = sketch11
pocket10.Length = Q("0.5 in")
pocket10.Reversed = True

# Sketch on XZ plane
sketch12 = doc.addObject("Sketcher::SketchObject", "Sketch011")
body.addObject(sketch12)
sketch12.AttachmentSupport = (doc.XZ_Plane, [""])
sketch12.MapMode = "FlatFace"
sketch12.addGeometry([
    Part.LineSegment(Vector(662.463619, -375.684389, 0), Vector(378.530383, -375.684389, 0)),
    Part.ArcOfCircle(Part.Circle(Vector(378.530383, -353.46328, 0), Vector(0, 0, 1), 22.221108), math.radians(90), math.radians(270)),
    Part.LineSegment(Vector(378.530383, -331.242172, 0), Vector(662.463619, -331.242172, 0)),
    Part.ArcOfCircle(Part.Circle(Vector(662.463619, -353.46328, 0), Vector(0, 0, 1), 22.221108), math.radians(-90), math.radians(90)),
], False)
sketch12.addConstraint([
    Sketcher.Constraint("Tangent", 0, 2, 1, 2),
    Sketcher.Constraint("Tangent", 1, 1, 2, 1),
    Sketcher.Constraint("Tangent", 2, 2, 3, 2),
    Sketcher.Constraint("Tangent", 3, 1, 0, 1),
    Sketcher.Constraint("Horizontal", 0),
    Sketcher.Constraint("Horizontal", 2),
    Sketcher.Constraint("Radius", 1, Q("22.221108 mm")),
    Sketcher.Constraint("DistanceX", 0, 2, 0, 1, Q("283.933236 mm")),
    Sketcher.Constraint("DistanceY", 1, 3, -1, 1, Q("353.46328 mm")),
    Sketcher.Constraint("DistanceX", -1, 1, 3, 3, Q("662.463619 mm")),
])
pocket11 = doc.addObject("PartDesign::Pocket", "Pocket010")
body.addObject(pocket11)
pocket11.Profile = sketch12
pocket11.Length = Q("0.5 in")
pocket11.Reversed = True

doc.recompute()
